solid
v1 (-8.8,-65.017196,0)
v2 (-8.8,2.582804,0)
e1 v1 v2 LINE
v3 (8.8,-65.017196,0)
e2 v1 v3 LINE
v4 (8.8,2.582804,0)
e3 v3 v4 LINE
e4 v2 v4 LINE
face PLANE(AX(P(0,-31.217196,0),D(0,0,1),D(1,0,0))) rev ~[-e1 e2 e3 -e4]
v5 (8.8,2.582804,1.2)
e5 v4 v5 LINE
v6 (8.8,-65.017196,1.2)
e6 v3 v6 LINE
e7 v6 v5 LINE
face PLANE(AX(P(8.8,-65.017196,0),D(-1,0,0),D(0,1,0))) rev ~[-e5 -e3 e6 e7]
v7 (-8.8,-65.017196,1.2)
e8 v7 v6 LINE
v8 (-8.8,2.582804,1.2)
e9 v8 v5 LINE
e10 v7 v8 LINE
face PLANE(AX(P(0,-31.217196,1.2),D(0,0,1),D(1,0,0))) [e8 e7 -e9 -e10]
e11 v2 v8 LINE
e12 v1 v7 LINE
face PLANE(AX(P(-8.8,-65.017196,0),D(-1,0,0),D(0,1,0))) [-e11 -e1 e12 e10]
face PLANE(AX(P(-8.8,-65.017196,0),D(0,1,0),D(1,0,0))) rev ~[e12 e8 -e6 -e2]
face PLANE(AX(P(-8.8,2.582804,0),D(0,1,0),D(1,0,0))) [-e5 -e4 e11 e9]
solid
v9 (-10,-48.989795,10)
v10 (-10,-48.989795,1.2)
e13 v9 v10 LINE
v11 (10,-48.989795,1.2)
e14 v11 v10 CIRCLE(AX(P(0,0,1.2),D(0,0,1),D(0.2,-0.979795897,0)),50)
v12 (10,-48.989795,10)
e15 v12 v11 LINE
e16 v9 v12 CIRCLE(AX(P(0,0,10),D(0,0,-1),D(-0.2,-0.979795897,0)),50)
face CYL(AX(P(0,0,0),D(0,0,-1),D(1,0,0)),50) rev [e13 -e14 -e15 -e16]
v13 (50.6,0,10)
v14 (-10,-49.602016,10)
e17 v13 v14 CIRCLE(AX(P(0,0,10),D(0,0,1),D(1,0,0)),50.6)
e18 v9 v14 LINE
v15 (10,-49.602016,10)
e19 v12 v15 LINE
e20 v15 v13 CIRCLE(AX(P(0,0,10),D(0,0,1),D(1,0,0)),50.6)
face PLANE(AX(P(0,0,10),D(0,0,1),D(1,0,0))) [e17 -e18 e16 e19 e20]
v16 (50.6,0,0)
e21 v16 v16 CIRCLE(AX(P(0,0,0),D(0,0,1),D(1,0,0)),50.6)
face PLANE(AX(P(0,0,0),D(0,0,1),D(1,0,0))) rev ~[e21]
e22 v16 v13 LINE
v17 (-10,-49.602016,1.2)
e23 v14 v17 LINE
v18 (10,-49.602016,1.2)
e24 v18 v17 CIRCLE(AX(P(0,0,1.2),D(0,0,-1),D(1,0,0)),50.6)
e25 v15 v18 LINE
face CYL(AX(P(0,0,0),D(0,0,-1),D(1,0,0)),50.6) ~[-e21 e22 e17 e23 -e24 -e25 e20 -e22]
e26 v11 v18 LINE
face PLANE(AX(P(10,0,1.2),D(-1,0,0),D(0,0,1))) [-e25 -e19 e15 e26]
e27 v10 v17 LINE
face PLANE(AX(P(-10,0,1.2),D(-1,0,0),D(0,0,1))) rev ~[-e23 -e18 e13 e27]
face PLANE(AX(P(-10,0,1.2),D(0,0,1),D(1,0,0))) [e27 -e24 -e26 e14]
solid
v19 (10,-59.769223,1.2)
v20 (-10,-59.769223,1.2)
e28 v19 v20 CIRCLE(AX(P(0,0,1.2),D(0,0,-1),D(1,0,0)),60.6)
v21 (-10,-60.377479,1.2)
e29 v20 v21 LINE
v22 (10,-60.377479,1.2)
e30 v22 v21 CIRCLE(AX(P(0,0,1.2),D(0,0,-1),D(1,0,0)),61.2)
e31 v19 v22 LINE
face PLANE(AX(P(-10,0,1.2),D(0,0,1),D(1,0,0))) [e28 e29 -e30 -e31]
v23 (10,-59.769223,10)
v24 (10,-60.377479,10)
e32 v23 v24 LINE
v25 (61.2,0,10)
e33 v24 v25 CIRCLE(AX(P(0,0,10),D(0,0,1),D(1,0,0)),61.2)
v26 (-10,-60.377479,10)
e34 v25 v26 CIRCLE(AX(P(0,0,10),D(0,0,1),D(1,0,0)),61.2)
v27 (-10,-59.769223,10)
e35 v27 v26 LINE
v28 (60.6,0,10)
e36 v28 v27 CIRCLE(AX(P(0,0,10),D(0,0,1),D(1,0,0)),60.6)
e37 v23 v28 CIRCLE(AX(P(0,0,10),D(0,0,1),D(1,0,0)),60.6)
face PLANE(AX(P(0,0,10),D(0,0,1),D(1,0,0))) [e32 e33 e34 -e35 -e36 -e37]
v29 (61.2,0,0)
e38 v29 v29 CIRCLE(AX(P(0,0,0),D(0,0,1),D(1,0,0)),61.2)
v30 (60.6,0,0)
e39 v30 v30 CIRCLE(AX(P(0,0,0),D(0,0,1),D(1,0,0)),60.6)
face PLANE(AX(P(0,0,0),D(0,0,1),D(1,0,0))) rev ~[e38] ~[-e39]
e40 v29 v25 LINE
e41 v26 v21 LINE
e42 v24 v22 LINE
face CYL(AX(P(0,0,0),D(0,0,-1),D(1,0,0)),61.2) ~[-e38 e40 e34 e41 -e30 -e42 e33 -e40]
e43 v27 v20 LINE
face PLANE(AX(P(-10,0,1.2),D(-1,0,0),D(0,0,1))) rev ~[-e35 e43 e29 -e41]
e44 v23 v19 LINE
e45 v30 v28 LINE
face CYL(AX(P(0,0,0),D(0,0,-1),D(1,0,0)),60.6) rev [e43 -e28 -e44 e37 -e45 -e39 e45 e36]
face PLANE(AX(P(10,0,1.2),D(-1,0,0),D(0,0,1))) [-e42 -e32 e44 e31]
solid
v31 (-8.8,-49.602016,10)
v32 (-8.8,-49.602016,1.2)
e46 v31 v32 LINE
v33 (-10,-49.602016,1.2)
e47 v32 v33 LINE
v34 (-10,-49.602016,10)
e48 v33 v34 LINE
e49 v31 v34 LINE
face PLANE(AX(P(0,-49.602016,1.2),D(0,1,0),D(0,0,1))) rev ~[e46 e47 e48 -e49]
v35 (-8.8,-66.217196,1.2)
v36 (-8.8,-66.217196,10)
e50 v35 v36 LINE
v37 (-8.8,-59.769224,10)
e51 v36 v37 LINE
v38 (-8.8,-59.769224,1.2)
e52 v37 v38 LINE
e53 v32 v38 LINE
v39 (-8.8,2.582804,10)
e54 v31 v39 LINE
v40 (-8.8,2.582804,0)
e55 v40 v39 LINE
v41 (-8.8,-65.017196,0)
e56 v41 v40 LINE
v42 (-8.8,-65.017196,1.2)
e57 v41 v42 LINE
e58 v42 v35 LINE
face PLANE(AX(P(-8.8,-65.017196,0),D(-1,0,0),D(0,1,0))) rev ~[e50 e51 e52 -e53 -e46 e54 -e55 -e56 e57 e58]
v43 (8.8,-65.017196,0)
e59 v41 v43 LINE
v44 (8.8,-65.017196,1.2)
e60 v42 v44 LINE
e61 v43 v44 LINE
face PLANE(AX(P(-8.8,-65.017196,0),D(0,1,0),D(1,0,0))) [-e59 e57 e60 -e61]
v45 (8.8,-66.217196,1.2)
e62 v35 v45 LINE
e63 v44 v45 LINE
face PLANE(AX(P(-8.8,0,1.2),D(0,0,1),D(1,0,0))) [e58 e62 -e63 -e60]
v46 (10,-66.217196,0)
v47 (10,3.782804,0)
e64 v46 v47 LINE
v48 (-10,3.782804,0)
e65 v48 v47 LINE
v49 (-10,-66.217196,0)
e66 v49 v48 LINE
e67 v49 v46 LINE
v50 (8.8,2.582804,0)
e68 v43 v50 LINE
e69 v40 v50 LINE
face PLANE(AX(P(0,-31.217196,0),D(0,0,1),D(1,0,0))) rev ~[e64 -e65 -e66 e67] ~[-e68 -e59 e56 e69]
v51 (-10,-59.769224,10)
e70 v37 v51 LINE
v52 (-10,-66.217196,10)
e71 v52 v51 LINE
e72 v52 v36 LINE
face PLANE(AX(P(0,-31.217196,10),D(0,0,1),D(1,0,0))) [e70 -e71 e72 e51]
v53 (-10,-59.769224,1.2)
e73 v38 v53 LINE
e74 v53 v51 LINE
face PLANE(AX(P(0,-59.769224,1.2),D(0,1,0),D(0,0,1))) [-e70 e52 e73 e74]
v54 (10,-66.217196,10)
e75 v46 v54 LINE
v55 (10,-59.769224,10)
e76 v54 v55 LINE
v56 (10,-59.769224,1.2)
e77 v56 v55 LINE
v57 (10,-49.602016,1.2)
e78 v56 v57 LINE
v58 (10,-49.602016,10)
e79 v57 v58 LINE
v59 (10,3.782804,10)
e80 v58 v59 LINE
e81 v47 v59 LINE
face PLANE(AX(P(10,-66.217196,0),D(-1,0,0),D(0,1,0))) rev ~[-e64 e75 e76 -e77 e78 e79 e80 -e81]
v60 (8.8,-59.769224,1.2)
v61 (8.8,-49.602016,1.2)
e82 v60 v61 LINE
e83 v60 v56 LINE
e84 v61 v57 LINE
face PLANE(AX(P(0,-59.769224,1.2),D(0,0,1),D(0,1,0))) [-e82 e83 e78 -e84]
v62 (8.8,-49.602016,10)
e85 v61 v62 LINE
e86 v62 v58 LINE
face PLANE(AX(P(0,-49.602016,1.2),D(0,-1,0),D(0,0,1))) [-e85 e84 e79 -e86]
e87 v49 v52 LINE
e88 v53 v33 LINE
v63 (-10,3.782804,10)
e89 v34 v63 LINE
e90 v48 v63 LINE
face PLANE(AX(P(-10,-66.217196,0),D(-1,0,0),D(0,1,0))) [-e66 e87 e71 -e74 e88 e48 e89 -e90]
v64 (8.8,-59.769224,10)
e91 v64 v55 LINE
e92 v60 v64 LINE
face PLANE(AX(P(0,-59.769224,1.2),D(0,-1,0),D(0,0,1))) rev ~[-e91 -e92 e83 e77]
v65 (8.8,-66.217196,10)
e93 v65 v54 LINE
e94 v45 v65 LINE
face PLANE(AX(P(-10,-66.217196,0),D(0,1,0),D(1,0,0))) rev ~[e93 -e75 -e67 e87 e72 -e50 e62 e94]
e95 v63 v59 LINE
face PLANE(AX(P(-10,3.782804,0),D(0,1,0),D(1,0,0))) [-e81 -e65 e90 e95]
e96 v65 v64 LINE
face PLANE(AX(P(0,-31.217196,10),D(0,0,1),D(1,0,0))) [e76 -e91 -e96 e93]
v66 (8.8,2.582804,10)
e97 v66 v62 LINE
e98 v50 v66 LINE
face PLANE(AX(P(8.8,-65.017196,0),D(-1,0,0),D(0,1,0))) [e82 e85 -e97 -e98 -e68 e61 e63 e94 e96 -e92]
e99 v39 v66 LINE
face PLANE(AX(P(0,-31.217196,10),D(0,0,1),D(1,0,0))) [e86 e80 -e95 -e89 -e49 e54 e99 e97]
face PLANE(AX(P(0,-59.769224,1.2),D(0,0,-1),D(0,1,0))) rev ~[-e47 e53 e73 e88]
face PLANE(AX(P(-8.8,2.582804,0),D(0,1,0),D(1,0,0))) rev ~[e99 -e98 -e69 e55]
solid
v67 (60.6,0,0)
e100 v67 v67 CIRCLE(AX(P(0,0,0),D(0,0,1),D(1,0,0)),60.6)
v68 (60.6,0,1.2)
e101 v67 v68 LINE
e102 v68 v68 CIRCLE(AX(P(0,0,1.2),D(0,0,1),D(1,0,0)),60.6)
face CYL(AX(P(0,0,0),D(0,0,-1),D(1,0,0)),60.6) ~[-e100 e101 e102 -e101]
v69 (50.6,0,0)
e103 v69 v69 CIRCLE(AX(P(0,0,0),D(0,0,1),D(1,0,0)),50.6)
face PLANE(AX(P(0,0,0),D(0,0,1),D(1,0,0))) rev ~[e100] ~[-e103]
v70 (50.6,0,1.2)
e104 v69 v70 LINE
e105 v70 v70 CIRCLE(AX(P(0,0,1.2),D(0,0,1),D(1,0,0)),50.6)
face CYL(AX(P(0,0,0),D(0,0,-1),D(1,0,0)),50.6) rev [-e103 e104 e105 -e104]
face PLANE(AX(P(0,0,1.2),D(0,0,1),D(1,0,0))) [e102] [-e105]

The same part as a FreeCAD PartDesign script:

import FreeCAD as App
import Part
import Sketcher

V = App.Vector


def add_polygon(sketch, points):
    """Adds a closed chain of lines whose ends are joined by coincident constraints."""
    first, n = sketch.GeometryCount, len(points)
    for a, b in zip(points, points[1:] + points[:1]):
        sketch.addGeometry(Part.LineSegment(App.Vector(*a, 0), App.Vector(*b, 0)), False)
    for i in range(n):
        sketch.addConstraint(Sketcher.Constraint("Coincident", first + i, 2, first + (i + 1) % n, 1))

doc = App.newDocument("Part")
body = doc.addObject("PartDesign::Body", "Body")

sketch1 = doc.addObject("Sketcher::SketchObject", "Sketch")
body.addObject(sketch1)
sketch1.AttachmentSupport = (doc.XY_Plane, [""])
sketch1.MapMode = "FlatFace"
sketch1.addGeometry([
    Part.Circle(V(0, 0, 0), V(0, 0, 1), 51),
    Part.Circle(V(0, 0, 0), V(0, 0, 1), 50),
], False)
sketch1.addConstraint([
    Sketcher.Constraint("Coincident", 0, 3, -1, 1),
    Sketcher.Constraint("Coincident", 1, 3, -1, 1),
    Sketcher.Constraint("Diameter", 1, 100.0),
    Sketcher.Constraint("Diameter", 0, 101.2),
])
pad1 = doc.addObject("PartDesign::Pad", "Pad")
body.addObject(pad1)
pad1.Profile = sketch1
pad1.Length = 10

sketch2 = doc.addObject("Sketcher::SketchObject", "Sketch001")
body.addObject(sketch2)
sketch2.AttachmentSupport = (doc.XY_Plane, [""])
sketch2.MapMode = "FlatFace"
sketch2.addGeometry(Part.Circle(V(0, 0, 0), V(0, 0, 1), 50), False)
sketch2.addConstraint([
    Sketcher.Constraint("Coincident", 0, 3, -1, 1),
    Sketcher.Constraint("Diameter", 0, 100.0),
])
pad2 = doc.addObject("PartDesign::Pad", "Pad001")
body.addObject(pad2)
pad2.Profile = sketch2
pad2.Length = 1.2
body2 = doc.addObject("PartDesign::Body", "Body001")

sketch3 = doc.addObject("Sketcher::SketchObject", "Sketch002")
body2.addObject(sketch3)
sketch3.AttachmentSupport = (doc.getObject("XY_Plane001"), [""])
sketch3.MapMode = "FlatFace"
sketch3.addGeometry([
    Part.Circle(V(0, 0, 0), V(0, 0, 1), 61),
    Part.Circle(V(0, 0, 0), V(0, 0, 1), 61),
], False)
sketch3.addConstraint([
    Sketcher.Constraint("Coincident", 0, 3, -1, 1),
    Sketcher.Constraint("Coincident", 1, 3, -1, 1),
    Sketcher.Constraint("Diameter", 0, 122.4),
    Sketcher.Constraint("Diameter", 1, 121.2),
])
pad3 = doc.addObject("PartDesign::Pad", "Pad002")
body2.addObject(pad3)
pad3.Profile = sketch3
pad3.Length = 10
body3 = doc.addObject("PartDesign::Body", "Body002")

sketch4 = doc.addObject("Sketcher::SketchObject", "Sketch003")
body3.addObject(sketch4)
sketch4.AttachmentSupport = (doc.getObject("XY_Plane002"), [""])
sketch4.MapMode = "FlatFace"
sketch4.addGeometry([
    Part.Circle(V(0, 0, 0), V(0, 0, 1), 61),
    Part.Circle(V(0, 0, 0), V(0, 0, 1), 51),
], False)
sketch4.addConstraint([
    Sketcher.Constraint("Coincident", 0, 3, -1, 1),
    Sketcher.Constraint("Coincident", 1, 3, -1, 1),
    Sketcher.Constraint("Diameter", 0, 121.2),
    Sketcher.Constraint("Diameter", 1, 101.2),
])
pad4 = doc.addObject("PartDesign::Pad", "Pad003")
body3.addObject(pad4)
pad4.Profile = sketch4
pad4.Length = 1.2
body4 = doc.addObject("PartDesign::Body", "Body003")

sketch5 = doc.addObject("Sketcher::SketchObject", "Sketch004")
body4.addObject(sketch5)
sketch5.AttachmentSupport = (doc.getObject("XZ_Plane003"), [""])
sketch5.MapMode = "FlatFace"
add_polygon(sketch5, [(-10, 10), (-10, 1), (10, 1), (10, 10)])
sketch5.addConstraint([
    Sketcher.Constraint("Vertical", 0),
    Sketcher.Constraint("Horizontal", 1),
    Sketcher.Constraint("Vertical", 2),
    Sketcher.Constraint("Horizontal", 3),
    Sketcher.Constraint("DistanceX", 1, 1, 1, 2, 20.0),
    Sketcher.Constraint("DistanceY", 0, 2, 0, 1, 8.8),
    Sketcher.Constraint("DistanceX", 0, 2, -1, 1, 10.0),
    Sketcher.Constraint("DistanceY", -1, 1, 2, 2, 10.0),
])
pad5 = doc.addObject("PartDesign::Pad", "Pad004")
body4.addObject(pad5)
pad5.Profile = sketch5
pad5.Length = 80
doc.recompute()

body5 = doc.addObject("PartDesign::Body", "Body004")
body5.BaseFeature = body4
boolean = doc.addObject("PartDesign::Boolean", "Boolean")
body.addObject(boolean)
boolean.Type = "Cut"
boolean.addObjects([body5])
doc.recompute()

boolean2 = doc.addObject("PartDesign::Boolean", "Boolean001")
body2.addObject(boolean2)
boolean2.Type = "Cut"
boolean2.addObjects([body4])
body6 = doc.addObject("PartDesign::Body", "Body005")

sketch6 = doc.addObject("Sketcher::SketchObject", "Sketch005")
body6.addObject(sketch6)
sketch6.AttachmentSupport = (doc.getObject("XY_Plane005"), [""])
sketch6.MapMode = "FlatFace"
add_polygon(sketch6, [(-10, 4), (-10, -66), (10, -66), (10, 4)])
add_polygon(sketch6, [(9, -65), (-9, -65), (-9, 3), (9, 3)])
sketch6.addConstraint([
    Sketcher.Constraint("Vertical", 0),
    Sketcher.Constraint("Horizontal", 1),
    Sketcher.Constraint("Vertical", 2),
    Sketcher.Constraint("Horizontal", 3),
    Sketcher.Constraint("Horizontal", 4),
    Sketcher.Constraint("Vertical", 5),
    Sketcher.Constraint("Horizontal", 6),
    Sketcher.Constraint("Vertical", 7),
    Sketcher.Constraint("DistanceX", 1, 1, 1, 2, 20.0),
    Sketcher.Constraint("DistanceY", 0, 2, 0, 1, 70.0),
    Sketcher.Constraint("DistanceX", 4, 2, 4, 1, 17.6),
    Sketcher.Constraint("DistanceY", 5, 1, 5, 2, 67.6),
    Sketcher.Constraint("DistanceX", 0, 2, -1, 1, 10.0),
    Sketcher.Constraint("DistanceX", 4, 2, -1, 1, 8.8),
    Sketcher.Constraint("DistanceY", 0, 2, 4, 2, 1.2),
    Sketcher.Constraint("DistanceY", 0, 2, -1, 1, 66.217196),
])
pad6 = doc.addObject("PartDesign::Pad", "Pad005")
body6.addObject(pad6)
pad6.Profile = sketch6
pad6.Length = 10

sketch7 = doc.addObject("Sketcher::SketchObject", "Sketch006")
body6.addObject(sketch7)
sketch7.AttachmentSupport = (doc.getObject("YZ_Plane005"), [""])
sketch7.MapMode = "FlatFace"
add_polygon(sketch7, [(-60, 10), (-60, 1), (-50, 1), (-50, 10)])
sketch7.addConstraint([
    Sketcher.Constraint("Vertical", 0),
    Sketcher.Constraint("Horizontal", 1),
    Sketcher.Constraint("Vertical", 2),
    Sketcher.Constraint("Horizontal", 3),
    Sketcher.Constraint("DistanceY", 0, 2, 0, 1, 8.8),
    Sketcher.Constraint("DistanceY", -1, 1, 2, 2, 10.0),
    Sketcher.Constraint("DistanceX", 1, 1, 1, 2, 10.167207),
    Sketcher.Constraint("DistanceX", 0, 2, -1, 1, 59.769224),
])
pocket1 = doc.addObject("PartDesign::Pocket", "Pocket")
body6.addObject(pocket1)
pocket1.Profile = sketch7
pocket1.Type = "ThroughAll"
pocket1.Midplane = True

sketch8 = doc.addObject("Sketcher::SketchObject", "Sketch007")
body6.addObject(sketch8)
sketch8.AttachmentSupport = (doc.getObject("XZ_Plane005"), [""])
sketch8.MapMode = "FlatFace"
add_polygon(sketch8, [(-9, 10), (-9, 1), (9, 1), (9, 10)])
sketch8.addConstraint([
    Sketcher.Constraint("Vertical", 0),
    Sketcher.Constraint("Horizontal", 1),
    Sketcher.Constraint("Vertical", 2),
    Sketcher.Constraint("Horizontal", 3),
    Sketcher.Constraint("DistanceX", 1, 1, 1, 2, 17.6),
    Sketcher.Constraint("DistanceY", 0, 2, 0, 1, 8.8),
    Sketcher.Constraint("DistanceY", -1, 1, 2, 2, 10.0),
    Sketcher.Constraint("DistanceX", 0, 2, -1, 1, 8.8),
])
pocket2 = doc.addObject("PartDesign::Pocket", "Pocket001")
body6.addObject(pocket2)
pocket2.Profile = sketch8
pocket2.Length = 70
pocket2.Reversed = True
body7 = doc.addObject("PartDesign::Body", "Body006")

sketch9 = doc.addObject("Sketcher::SketchObject", "Sketch008")
body7.addObject(sketch9)
sketch9.AttachmentSupport = (doc.getObject("XY_Plane006"), [""])
sketch9.MapMode = "FlatFace"
add_polygon(sketch9, [(-9, 3), (-9, -65), (9, -65), (9, 3)])
sketch9.addConstraint([
    Sketcher.Constraint("Vertical", 0),
    Sketcher.Constraint("Horizontal", 1),
    Sketcher.Constraint("Vertical", 2),
    Sketcher.Constraint("Horizontal", 3),
    Sketcher.Constraint("DistanceX", 1, 1, 1, 2, 17.6),
    Sketcher.Constraint("DistanceY", 0, 2, 0, 1, 67.6),
    Sketcher.Constraint("DistanceX", 0, 2, -1, 1, 8.8),
    Sketcher.Constraint("DistanceY", 0, 2, -1, 1, 65.017196),
])
pad7 = doc.addObject("PartDesign::Pad", "Pad006")
body7.addObject(pad7)
pad7.Profile = sketch9
pad7.Length = 1.2

doc.recompute()
